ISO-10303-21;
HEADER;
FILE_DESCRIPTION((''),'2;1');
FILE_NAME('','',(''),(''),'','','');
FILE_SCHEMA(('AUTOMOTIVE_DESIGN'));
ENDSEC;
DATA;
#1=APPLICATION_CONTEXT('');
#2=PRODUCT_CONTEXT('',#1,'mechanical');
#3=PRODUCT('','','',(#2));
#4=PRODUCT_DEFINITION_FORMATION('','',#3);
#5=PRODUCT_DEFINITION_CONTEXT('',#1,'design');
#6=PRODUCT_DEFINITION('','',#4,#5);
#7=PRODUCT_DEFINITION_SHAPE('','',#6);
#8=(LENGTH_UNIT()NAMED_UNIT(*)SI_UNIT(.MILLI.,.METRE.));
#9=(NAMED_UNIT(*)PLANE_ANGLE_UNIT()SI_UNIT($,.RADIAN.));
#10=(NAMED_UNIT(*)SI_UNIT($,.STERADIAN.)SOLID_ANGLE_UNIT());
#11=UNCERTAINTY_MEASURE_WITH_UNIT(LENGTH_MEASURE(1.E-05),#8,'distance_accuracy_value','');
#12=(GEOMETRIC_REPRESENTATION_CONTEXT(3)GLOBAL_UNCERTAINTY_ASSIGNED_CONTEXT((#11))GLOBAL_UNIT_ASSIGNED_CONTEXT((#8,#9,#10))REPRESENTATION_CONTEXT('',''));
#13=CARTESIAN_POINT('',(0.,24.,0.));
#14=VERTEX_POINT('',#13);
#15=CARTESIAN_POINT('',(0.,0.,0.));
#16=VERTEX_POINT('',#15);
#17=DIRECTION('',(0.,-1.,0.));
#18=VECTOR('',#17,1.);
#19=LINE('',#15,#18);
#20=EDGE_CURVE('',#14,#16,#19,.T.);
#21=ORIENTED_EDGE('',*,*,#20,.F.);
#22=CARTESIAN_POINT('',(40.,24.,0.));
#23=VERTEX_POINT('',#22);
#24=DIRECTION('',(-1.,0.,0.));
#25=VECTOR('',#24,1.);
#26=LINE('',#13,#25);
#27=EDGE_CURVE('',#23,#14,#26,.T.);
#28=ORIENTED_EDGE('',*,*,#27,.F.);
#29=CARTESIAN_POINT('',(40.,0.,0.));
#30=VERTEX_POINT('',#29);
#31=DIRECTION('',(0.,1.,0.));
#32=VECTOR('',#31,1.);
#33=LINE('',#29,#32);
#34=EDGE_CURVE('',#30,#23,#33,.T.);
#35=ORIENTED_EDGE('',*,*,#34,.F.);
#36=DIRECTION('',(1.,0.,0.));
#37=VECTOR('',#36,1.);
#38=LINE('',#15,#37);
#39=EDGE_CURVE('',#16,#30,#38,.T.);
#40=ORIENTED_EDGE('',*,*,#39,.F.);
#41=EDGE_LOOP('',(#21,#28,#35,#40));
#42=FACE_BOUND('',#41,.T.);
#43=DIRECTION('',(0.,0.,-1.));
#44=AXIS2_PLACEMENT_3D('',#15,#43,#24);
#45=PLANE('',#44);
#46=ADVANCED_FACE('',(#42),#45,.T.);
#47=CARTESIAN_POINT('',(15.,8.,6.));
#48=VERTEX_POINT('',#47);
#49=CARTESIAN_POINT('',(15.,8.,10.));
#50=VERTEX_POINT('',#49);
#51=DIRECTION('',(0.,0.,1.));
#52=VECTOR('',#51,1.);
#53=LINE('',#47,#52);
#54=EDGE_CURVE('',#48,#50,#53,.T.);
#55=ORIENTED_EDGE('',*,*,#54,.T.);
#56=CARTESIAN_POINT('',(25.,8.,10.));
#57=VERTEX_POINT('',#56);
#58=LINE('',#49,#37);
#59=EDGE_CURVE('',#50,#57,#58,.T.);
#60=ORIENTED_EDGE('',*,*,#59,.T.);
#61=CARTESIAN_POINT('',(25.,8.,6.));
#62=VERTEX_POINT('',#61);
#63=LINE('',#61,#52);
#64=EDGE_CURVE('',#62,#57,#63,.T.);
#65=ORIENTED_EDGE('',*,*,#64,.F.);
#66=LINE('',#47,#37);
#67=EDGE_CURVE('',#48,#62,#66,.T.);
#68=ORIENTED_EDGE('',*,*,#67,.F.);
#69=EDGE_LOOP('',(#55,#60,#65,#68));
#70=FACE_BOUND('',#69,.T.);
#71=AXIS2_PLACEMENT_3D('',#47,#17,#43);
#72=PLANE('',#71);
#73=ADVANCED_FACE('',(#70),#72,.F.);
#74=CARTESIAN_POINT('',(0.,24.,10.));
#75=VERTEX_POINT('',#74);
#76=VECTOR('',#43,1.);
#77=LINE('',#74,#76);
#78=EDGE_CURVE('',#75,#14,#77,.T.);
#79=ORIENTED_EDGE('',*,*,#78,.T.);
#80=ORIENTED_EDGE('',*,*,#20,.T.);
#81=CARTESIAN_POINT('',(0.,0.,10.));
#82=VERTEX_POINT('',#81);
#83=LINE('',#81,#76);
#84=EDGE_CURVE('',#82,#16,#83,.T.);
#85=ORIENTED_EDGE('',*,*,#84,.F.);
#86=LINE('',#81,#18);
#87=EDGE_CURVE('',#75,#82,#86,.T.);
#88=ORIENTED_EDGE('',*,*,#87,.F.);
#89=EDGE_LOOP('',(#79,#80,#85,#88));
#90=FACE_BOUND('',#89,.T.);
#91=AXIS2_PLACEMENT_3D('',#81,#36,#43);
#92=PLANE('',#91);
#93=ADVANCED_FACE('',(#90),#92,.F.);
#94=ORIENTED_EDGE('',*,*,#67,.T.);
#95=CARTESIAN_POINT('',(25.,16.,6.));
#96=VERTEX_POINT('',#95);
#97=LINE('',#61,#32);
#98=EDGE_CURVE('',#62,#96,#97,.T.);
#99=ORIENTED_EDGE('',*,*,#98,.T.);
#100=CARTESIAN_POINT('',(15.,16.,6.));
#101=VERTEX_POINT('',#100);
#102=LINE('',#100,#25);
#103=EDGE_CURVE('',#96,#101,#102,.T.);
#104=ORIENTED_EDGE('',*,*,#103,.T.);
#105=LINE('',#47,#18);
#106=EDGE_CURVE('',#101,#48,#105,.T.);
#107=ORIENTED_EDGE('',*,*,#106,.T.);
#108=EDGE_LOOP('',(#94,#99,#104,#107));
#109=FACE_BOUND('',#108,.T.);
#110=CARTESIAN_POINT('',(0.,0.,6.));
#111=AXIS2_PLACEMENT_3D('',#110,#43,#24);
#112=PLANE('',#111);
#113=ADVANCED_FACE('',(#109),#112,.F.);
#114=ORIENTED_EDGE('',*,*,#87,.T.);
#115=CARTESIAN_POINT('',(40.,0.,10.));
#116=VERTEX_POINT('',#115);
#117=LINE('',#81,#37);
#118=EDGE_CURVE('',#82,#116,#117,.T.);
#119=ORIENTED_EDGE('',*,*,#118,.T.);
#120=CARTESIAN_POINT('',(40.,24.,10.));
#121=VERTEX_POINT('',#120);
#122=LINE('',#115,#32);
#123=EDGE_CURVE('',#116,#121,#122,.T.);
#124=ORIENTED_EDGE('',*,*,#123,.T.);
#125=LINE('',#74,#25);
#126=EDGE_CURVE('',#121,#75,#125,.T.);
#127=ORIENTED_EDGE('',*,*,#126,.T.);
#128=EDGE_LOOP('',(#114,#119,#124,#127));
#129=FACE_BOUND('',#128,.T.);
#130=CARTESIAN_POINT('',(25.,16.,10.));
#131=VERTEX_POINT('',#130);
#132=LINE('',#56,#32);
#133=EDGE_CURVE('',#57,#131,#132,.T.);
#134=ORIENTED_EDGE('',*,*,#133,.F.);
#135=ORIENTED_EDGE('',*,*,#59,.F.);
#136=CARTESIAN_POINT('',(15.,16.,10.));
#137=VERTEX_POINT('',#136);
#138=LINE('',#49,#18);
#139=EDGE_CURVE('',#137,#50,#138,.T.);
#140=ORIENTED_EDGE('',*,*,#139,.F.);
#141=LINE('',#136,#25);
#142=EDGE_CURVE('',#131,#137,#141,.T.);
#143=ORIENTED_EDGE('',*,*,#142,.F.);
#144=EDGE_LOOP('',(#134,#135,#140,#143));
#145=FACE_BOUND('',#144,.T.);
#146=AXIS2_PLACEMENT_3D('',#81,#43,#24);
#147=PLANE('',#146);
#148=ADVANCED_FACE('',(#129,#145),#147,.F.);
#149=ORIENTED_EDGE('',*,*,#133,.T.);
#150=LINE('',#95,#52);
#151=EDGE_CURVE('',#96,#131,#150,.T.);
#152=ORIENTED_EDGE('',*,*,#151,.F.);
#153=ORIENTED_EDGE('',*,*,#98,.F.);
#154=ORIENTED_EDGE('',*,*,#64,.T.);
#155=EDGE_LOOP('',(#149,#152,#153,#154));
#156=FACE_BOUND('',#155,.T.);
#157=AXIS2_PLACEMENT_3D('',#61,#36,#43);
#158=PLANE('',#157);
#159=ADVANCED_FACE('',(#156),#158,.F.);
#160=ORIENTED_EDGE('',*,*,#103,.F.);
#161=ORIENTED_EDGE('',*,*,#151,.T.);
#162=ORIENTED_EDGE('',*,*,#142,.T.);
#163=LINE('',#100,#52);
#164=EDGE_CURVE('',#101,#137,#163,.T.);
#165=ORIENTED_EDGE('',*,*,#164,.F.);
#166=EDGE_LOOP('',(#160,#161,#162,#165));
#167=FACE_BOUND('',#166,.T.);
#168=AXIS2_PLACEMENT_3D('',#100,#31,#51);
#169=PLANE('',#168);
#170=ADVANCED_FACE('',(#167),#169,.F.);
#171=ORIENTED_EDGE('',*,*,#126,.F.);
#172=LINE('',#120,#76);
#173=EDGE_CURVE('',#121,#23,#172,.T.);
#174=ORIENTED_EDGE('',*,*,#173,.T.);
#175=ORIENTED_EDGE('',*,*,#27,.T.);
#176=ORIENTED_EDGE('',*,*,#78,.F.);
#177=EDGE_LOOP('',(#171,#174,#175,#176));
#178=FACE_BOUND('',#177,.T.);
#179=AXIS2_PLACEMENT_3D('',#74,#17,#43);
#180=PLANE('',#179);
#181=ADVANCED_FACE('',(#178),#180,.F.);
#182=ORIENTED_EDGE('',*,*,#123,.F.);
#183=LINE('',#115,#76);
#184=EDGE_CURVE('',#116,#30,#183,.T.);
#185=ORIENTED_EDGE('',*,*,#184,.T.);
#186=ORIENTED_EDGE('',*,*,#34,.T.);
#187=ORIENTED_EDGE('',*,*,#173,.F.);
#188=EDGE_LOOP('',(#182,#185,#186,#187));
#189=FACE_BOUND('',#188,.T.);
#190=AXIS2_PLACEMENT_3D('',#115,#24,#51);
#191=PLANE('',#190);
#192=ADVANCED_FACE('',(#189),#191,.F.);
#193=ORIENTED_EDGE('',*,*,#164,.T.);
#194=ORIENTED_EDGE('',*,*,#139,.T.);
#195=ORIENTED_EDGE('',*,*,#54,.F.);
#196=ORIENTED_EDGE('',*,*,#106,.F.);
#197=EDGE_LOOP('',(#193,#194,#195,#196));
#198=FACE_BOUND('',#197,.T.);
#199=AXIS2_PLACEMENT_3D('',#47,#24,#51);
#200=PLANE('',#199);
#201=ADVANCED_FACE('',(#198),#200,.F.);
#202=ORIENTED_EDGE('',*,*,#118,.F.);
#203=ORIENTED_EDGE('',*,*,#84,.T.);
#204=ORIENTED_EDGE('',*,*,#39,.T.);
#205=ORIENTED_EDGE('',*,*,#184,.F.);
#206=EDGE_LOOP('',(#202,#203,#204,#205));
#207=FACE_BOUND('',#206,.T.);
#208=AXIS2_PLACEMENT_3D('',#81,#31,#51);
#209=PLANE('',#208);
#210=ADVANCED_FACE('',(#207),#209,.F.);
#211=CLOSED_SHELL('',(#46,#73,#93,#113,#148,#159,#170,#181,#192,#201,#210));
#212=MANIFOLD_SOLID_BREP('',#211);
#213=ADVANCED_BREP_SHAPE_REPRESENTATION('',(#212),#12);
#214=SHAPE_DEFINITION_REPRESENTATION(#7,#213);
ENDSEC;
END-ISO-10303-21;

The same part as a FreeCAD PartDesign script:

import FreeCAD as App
import Part
import Sketcher


def add_polygon(sketch, points):
    """Adds a closed chain of lines whose ends are joined by coincident constraints."""
    first, n = sketch.GeometryCount, len(points)
    for a, b in zip(points, points[1:] + points[:1]):
        sketch.addGeometry(Part.LineSegment(App.Vector(*a, 0), App.Vector(*b, 0)), False)
    for i in range(n):
        sketch.addConstraint(Sketcher.Constraint("Coincident", first + i, 2, first + (i + 1) % n, 1))

doc = App.newDocument("Part")
params = doc.addObject("Spreadsheet::Sheet", "Params")
for row, (alias, value) in enumerate([
    ("sketch1_width", "40 mm"),
    ("sketch1_height", "24 mm"),
    ("pad1_length", "10 mm"),
    ("sketch2_width", "10 mm"),
    ("sketch2_height", "8 mm"),
    ("pocket1_length", "4 mm"),
], start=1):
    params.set(f"A{row}", alias)
    params.set(f"B{row}", "=" + value)
    params.setAlias(f"B{row}", alias)

body = doc.addObject("PartDesign::Body", "Body")

sketch1 = body.newObject("Sketcher::SketchObject", "Sketch")
sketch1.AttachmentSupport = (doc.getObject("XY_Plane"), [""])
sketch1.MapMode = "FlatFace"
add_polygon(sketch1, [(0, 24), (0, 0), (40, 0), (40, 24)])
sketch1.addConstraint(Sketcher.Constraint("Vertical", 0))
sketch1.addConstraint(Sketcher.Constraint("Horizontal", 1))
sketch1.addConstraint(Sketcher.Constraint("Vertical", 2))
sketch1.addConstraint(Sketcher.Constraint("Horizontal", 3))
sketch1.addConstraint(Sketcher.Constraint("Coincident", 0, 2, -1, 1))
sketch1.addConstraint(Sketcher.Constraint("DistanceX", 1, 1, 1, 2, 40.0))
sketch1.addConstraint(Sketcher.Constraint("DistanceY", 0, 2, 0, 1, 24.0))
sketch1.setExpression("Constraints[9]", "Params.sketch1_width")
sketch1.setExpression("Constraints[10]", "Params.sketch1_height")
pad1 = body.newObject("PartDesign::Pad", "Pad")
pad1.Profile = sketch1
pad1.setExpression("Length", "Params.pad1_length")

sketch2 = body.newObject("Sketcher::SketchObject", "Sketch001")
sketch2.AttachmentSupport = (doc.getObject("XY_Plane"), [""])
sketch2.MapMode = "FlatFace"
sketch2.AttachmentOffset = App.Placement(App.Vector(0, 0, 10), App.Rotation())
add_polygon(sketch2, [(15, 16), (15, 8), (25, 8), (25, 16)])
sketch2.addConstraint(Sketcher.Constraint("Vertical", 0))
sketch2.addConstraint(Sketcher.Constraint("Horizontal", 1))
sketch2.addConstraint(Sketcher.Constraint("Vertical", 2))
sketch2.addConstraint(Sketcher.Constraint("Horizontal", 3))
sketch2.addConstraint(Sketcher.Constraint("DistanceX", 1, 1, 1, 2, 10.0))
sketch2.addConstraint(Sketcher.Constraint("DistanceY", 0, 2, 0, 1, 8.0))
sketch2.addConstraint(Sketcher.Constraint("DistanceX", -1, 1, 0, 2, 15.0))
sketch2.addConstraint(Sketcher.Constraint("DistanceY", -1, 1, 0, 2, 8.0))
sketch2.setExpression("Constraints[8]", "Params.sketch2_width")
sketch2.setExpression("Constraints[9]", "Params.sketch2_height")
pocket1 = body.newObject("PartDesign::Pocket", "Pocket")
pocket1.Profile = sketch2
pocket1.setExpression("Length", "Params.pocket1_length")

doc.recompute()
